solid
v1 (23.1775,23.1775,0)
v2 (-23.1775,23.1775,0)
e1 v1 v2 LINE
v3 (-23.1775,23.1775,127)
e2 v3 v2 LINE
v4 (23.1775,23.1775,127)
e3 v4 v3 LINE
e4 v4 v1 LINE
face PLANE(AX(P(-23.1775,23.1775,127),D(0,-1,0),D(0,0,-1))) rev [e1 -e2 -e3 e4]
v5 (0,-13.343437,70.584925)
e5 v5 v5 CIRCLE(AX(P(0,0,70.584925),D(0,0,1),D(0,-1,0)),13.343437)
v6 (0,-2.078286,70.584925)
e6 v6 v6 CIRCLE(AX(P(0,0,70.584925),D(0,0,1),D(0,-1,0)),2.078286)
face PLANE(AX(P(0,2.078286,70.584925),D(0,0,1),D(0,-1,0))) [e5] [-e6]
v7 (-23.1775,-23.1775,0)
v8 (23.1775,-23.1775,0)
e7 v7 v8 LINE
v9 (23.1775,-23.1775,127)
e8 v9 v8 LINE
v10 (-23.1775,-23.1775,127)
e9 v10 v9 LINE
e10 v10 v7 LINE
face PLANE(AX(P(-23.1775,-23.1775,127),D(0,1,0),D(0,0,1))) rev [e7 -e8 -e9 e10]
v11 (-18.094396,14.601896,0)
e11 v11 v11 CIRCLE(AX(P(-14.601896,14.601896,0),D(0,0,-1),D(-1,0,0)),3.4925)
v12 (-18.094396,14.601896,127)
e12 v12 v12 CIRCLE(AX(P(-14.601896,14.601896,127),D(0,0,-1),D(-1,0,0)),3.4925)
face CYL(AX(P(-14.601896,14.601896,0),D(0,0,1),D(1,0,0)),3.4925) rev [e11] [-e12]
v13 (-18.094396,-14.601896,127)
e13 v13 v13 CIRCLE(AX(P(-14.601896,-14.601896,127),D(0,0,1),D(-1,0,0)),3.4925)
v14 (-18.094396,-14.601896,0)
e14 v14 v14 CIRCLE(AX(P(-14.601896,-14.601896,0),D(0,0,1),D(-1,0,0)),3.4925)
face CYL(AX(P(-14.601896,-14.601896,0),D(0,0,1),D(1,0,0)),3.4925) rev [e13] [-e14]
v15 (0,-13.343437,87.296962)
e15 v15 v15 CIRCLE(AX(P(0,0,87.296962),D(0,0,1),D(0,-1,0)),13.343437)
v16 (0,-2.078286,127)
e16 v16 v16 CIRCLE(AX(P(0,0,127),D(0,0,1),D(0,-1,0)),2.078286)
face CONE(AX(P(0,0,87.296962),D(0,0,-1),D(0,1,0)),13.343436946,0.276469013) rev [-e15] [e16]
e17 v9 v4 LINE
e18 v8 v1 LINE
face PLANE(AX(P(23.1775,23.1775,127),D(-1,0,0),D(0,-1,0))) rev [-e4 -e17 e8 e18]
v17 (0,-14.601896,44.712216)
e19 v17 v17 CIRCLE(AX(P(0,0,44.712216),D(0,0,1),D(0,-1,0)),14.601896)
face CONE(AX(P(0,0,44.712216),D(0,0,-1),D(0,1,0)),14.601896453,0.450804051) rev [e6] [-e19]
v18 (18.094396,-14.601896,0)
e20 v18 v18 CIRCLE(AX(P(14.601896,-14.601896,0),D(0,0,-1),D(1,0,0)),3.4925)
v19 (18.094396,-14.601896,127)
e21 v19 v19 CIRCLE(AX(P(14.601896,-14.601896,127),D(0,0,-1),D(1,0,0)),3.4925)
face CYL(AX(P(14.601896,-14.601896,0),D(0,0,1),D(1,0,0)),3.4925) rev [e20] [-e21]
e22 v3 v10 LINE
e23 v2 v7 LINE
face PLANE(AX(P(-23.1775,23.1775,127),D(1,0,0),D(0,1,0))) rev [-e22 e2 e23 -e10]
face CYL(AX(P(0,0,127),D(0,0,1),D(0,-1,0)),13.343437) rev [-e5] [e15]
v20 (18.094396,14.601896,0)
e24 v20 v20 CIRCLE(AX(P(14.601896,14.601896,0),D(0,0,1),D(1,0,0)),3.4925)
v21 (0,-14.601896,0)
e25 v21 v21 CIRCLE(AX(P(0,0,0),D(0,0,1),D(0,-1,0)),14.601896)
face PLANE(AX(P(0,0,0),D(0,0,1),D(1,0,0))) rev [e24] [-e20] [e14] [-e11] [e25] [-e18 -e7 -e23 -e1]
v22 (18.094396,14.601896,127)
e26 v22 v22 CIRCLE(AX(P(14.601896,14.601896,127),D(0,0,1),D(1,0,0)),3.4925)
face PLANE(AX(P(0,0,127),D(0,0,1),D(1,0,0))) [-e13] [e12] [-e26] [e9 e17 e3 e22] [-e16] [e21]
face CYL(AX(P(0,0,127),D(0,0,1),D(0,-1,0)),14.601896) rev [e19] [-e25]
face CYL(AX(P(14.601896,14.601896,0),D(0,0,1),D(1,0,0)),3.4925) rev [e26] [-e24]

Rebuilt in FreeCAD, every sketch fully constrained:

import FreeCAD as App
import Part
import Sketcher
from FreeCAD import Vector
Q = App.Units.Quantity


def add_polygon(sketch, points):
    """Adds a closed chain of lines whose ends are joined by coincident constraints."""
    first, n = sketch.GeometryCount, len(points)
    for a, b in zip(points, points[1:] + points[:1]):
        sketch.addGeometry(Part.LineSegment(App.Vector(*a, 0), App.Vector(*b, 0)), False)
    for i in range(n):
        sketch.addConstraint(Sketcher.Constraint("Coincident", first + i, 2, first + (i + 1) % n, 1))

doc = App.newDocument("Part")
params = doc.addObject("Spreadsheet::Sheet", "Params")
for row, (alias, value) in enumerate([
    ("sketch1_width", "1.825 in"),
    ("pad1_length", "5 in"),
    ("sketch2_diameter", "0.11 in"),
    ("sketch3_diameter", "0.275 in"),
    ("sketch4_diameter", "0.275 in"),
    ("sketch5_height", "5 in"),
    ("groove_angle", "360 deg"),
], start=1):
    params.set(f"A{row}", alias)
    params.set(f"B{row}", "=" + value)
    params.setAlias(f"B{row}", alias)

body = doc.addObject("PartDesign::Body", "Body")

# Sketch on XY plane
sketch1 = body.newObject("Sketcher::SketchObject", "Sketch")
sketch1.AttachmentSupport = (doc.getObject("XY_Plane"), [""])
sketch1.MapMode = "FlatFace"
add_polygon(sketch1, [(-23.1775, 23.1775), (-23.1775, -23.1775), (23.1775, -23.1775), (23.1775, 23.1775)])  # lines 0-3
sketch1.addConstraint([
    Sketcher.Constraint("Vertical", 0),
    Sketcher.Constraint("Horizontal", 1),
    Sketcher.Constraint("Vertical", 2),
    Sketcher.Constraint("Horizontal", 3),
    Sketcher.Constraint("Symmetric", 0, 2, 2, 2, -1, 1),
    Sketcher.Constraint("Equal", 3, 0),
    Sketcher.Constraint("DistanceX", 1, 1, 1, 2, Q("1.825 in")),
])
sketch1.setExpression("Constraints[10]", "Params.sketch1_width")
pad1 = body.newObject("PartDesign::Pad", "Pad")
pad1.Profile = sketch1
pad1.setExpression("Length", "Params.pad1_length")

# Sketch on XY plane
sketch2 = body.newObject("Sketcher::SketchObject", "Sketch001")
sketch2.AttachmentSupport = (doc.getObject("XY_Plane"), [""])
sketch2.MapMode = "FlatFace"
sketch2.AttachmentOffset = App.Placement(Vector(0, 0, 5 * 25.4), App.Rotation())
sketch2.addGeometry(Part.Circle(Vector(0, 0, 0), Vector(0, 0, 1), 1.397), False)
sketch2.addConstraint([
    Sketcher.Constraint("Coincident", 0, 3, -1, 1),
    Sketcher.Constraint("Diameter", 0, Q("0.11 in")),
])
sketch2.setExpression("Constraints[1]", "Params.sketch2_diameter")
pocket1 = body.newObject("PartDesign::Pocket", "Pocket")
pocket1.Profile = sketch2
pocket1.Type = "ThroughAll"

# Sketch on XY plane
sketch3 = body.newObject("Sketcher::SketchObject", "Sketch002")
sketch3.AttachmentSupport = (doc.getObject("XY_Plane"), [""])
sketch3.MapMode = "FlatFace"
sketch3.AttachmentOffset = App.Placement(Vector(0, 0, 5 * 25.4), App.Rotation())
sketch3.addGeometry(Part.Circle(Vector(14.601896, 14.601896, 0), Vector(0, 0, 1), 3.4925), False)
sketch3.addConstraint([
    Sketcher.Constraint("Diameter", 0, Q("0.275 in")),
    Sketcher.Constraint("DistanceX", -1, 1, 0, 3, Q("14.601896 mm")),
    Sketcher.Constraint("DistanceY", -1, 1, 0, 3, Q("14.601896 mm")),
])
sketch3.setExpression("Constraints[0]", "Params.sketch3_diameter")
pocket2 = body.newObject("PartDesign::Pocket", "Pocket001")
pocket2.Profile = sketch3
pocket2.Type = "ThroughAll"
doc.recompute()

mirrored = body.newObject("PartDesign::Mirrored", "Mirrored")
mirrored.Originals = [pocket2]
mirrored.MirrorPlane = (doc.getObject("XZ_Plane"), [""])
body.Tip = mirrored
doc.recompute()

mirrored2 = body.newObject("PartDesign::Mirrored", "Mirrored001")
mirrored2.Originals = [pocket2]
mirrored2.MirrorPlane = (doc.getObject("YZ_Plane"), [""])
body.Tip = mirrored2

# Sketch on XY plane
sketch4 = body.newObject("Sketcher::SketchObject", "Sketch003")
sketch4.AttachmentSupport = (doc.getObject("XY_Plane"), [""])
sketch4.MapMode = "FlatFace"
sketch4.AttachmentOffset = App.Placement(Vector(0, 0, 5 * 25.4), App.Rotation())
sketch4.addGeometry(Part.Circle(Vector(-14.601896, -14.601896, 0), Vector(0, 0, 1), 3.4925), False)
sketch4.addConstraint([
    Sketcher.Constraint("Diameter", 0, Q("0.275 in")),
    Sketcher.Constraint("DistanceX", 0, 3, -1, 1, Q("14.601896 mm")),
    Sketcher.Constraint("DistanceY", 0, 3, -1, 1, Q("14.601896 mm")),
])
sketch4.setExpression("Constraints[0]", "Params.sketch4_diameter")
pocket3 = body.newObject("PartDesign::Pocket", "Pocket002")
pocket3.Profile = sketch4
pocket3.Type = "ThroughAll"

# Sketch on YZ plane
sketch5 = body.newObject("Sketcher::SketchObject", "Sketch004")
sketch5.AttachmentSupport = (doc.getObject("YZ_Plane"), [""])
sketch5.MapMode = "FlatFace"
add_polygon(sketch5, [(14.601896, 0), (14.601896, 44.712216), (2.078286, 70.584925), (13.343437, 70.584925), (13.343437, 87.296962), (2.078286, 127), (0, 127), (0, 0)])  # lines 0-7
sketch5.addConstraint([
    Sketcher.Constraint("Vertical", 0),
    Sketcher.Constraint("Horizontal", 2),
    Sketcher.Constraint("Vertical", 3),
    Sketcher.Constraint("Horizontal", 5),
    Sketcher.Constraint("Vertical", 6),
    Sketcher.Constraint("Horizontal", 7),
    Sketcher.Constraint("Coincident", 6, 2, -1, 1),
    Sketcher.Constraint("Vertical", 1, 2, 4, 2),
    Sketcher.Constraint("DistanceY", 6, 2, 6, 1, Q("5 in")),
    Sketcher.Constraint("DistanceX", 2, 1, 2, 2, Q("11.265151 mm")),
    Sketcher.Constraint("DistanceX", 5, 2, 5, 1, Q("2.078286 mm")),
    Sketcher.Constraint("DistanceX", 7, 1, 7, 2, Q("14.601896 mm")),
    Sketcher.Constraint("DistanceY", 0, 1, 0, 2, Q("44.712216 mm")),
    Sketcher.Constraint("DistanceY", 3, 1, 3, 2, Q("16.712037 mm")),
    Sketcher.Constraint("DistanceY", -1, 1, 3, 2, Q("87.296962 mm")),
])
sketch5.setExpression("Constraints[16]", "Params.sketch5_height")
groove = body.newObject("PartDesign::Groove", "Groove")
groove.Profile = sketch5
groove.ReferenceAxis = (sketch5, ["V_Axis"])
groove.setExpression("Angle", "Params.groove_angle")

doc.recompute()
